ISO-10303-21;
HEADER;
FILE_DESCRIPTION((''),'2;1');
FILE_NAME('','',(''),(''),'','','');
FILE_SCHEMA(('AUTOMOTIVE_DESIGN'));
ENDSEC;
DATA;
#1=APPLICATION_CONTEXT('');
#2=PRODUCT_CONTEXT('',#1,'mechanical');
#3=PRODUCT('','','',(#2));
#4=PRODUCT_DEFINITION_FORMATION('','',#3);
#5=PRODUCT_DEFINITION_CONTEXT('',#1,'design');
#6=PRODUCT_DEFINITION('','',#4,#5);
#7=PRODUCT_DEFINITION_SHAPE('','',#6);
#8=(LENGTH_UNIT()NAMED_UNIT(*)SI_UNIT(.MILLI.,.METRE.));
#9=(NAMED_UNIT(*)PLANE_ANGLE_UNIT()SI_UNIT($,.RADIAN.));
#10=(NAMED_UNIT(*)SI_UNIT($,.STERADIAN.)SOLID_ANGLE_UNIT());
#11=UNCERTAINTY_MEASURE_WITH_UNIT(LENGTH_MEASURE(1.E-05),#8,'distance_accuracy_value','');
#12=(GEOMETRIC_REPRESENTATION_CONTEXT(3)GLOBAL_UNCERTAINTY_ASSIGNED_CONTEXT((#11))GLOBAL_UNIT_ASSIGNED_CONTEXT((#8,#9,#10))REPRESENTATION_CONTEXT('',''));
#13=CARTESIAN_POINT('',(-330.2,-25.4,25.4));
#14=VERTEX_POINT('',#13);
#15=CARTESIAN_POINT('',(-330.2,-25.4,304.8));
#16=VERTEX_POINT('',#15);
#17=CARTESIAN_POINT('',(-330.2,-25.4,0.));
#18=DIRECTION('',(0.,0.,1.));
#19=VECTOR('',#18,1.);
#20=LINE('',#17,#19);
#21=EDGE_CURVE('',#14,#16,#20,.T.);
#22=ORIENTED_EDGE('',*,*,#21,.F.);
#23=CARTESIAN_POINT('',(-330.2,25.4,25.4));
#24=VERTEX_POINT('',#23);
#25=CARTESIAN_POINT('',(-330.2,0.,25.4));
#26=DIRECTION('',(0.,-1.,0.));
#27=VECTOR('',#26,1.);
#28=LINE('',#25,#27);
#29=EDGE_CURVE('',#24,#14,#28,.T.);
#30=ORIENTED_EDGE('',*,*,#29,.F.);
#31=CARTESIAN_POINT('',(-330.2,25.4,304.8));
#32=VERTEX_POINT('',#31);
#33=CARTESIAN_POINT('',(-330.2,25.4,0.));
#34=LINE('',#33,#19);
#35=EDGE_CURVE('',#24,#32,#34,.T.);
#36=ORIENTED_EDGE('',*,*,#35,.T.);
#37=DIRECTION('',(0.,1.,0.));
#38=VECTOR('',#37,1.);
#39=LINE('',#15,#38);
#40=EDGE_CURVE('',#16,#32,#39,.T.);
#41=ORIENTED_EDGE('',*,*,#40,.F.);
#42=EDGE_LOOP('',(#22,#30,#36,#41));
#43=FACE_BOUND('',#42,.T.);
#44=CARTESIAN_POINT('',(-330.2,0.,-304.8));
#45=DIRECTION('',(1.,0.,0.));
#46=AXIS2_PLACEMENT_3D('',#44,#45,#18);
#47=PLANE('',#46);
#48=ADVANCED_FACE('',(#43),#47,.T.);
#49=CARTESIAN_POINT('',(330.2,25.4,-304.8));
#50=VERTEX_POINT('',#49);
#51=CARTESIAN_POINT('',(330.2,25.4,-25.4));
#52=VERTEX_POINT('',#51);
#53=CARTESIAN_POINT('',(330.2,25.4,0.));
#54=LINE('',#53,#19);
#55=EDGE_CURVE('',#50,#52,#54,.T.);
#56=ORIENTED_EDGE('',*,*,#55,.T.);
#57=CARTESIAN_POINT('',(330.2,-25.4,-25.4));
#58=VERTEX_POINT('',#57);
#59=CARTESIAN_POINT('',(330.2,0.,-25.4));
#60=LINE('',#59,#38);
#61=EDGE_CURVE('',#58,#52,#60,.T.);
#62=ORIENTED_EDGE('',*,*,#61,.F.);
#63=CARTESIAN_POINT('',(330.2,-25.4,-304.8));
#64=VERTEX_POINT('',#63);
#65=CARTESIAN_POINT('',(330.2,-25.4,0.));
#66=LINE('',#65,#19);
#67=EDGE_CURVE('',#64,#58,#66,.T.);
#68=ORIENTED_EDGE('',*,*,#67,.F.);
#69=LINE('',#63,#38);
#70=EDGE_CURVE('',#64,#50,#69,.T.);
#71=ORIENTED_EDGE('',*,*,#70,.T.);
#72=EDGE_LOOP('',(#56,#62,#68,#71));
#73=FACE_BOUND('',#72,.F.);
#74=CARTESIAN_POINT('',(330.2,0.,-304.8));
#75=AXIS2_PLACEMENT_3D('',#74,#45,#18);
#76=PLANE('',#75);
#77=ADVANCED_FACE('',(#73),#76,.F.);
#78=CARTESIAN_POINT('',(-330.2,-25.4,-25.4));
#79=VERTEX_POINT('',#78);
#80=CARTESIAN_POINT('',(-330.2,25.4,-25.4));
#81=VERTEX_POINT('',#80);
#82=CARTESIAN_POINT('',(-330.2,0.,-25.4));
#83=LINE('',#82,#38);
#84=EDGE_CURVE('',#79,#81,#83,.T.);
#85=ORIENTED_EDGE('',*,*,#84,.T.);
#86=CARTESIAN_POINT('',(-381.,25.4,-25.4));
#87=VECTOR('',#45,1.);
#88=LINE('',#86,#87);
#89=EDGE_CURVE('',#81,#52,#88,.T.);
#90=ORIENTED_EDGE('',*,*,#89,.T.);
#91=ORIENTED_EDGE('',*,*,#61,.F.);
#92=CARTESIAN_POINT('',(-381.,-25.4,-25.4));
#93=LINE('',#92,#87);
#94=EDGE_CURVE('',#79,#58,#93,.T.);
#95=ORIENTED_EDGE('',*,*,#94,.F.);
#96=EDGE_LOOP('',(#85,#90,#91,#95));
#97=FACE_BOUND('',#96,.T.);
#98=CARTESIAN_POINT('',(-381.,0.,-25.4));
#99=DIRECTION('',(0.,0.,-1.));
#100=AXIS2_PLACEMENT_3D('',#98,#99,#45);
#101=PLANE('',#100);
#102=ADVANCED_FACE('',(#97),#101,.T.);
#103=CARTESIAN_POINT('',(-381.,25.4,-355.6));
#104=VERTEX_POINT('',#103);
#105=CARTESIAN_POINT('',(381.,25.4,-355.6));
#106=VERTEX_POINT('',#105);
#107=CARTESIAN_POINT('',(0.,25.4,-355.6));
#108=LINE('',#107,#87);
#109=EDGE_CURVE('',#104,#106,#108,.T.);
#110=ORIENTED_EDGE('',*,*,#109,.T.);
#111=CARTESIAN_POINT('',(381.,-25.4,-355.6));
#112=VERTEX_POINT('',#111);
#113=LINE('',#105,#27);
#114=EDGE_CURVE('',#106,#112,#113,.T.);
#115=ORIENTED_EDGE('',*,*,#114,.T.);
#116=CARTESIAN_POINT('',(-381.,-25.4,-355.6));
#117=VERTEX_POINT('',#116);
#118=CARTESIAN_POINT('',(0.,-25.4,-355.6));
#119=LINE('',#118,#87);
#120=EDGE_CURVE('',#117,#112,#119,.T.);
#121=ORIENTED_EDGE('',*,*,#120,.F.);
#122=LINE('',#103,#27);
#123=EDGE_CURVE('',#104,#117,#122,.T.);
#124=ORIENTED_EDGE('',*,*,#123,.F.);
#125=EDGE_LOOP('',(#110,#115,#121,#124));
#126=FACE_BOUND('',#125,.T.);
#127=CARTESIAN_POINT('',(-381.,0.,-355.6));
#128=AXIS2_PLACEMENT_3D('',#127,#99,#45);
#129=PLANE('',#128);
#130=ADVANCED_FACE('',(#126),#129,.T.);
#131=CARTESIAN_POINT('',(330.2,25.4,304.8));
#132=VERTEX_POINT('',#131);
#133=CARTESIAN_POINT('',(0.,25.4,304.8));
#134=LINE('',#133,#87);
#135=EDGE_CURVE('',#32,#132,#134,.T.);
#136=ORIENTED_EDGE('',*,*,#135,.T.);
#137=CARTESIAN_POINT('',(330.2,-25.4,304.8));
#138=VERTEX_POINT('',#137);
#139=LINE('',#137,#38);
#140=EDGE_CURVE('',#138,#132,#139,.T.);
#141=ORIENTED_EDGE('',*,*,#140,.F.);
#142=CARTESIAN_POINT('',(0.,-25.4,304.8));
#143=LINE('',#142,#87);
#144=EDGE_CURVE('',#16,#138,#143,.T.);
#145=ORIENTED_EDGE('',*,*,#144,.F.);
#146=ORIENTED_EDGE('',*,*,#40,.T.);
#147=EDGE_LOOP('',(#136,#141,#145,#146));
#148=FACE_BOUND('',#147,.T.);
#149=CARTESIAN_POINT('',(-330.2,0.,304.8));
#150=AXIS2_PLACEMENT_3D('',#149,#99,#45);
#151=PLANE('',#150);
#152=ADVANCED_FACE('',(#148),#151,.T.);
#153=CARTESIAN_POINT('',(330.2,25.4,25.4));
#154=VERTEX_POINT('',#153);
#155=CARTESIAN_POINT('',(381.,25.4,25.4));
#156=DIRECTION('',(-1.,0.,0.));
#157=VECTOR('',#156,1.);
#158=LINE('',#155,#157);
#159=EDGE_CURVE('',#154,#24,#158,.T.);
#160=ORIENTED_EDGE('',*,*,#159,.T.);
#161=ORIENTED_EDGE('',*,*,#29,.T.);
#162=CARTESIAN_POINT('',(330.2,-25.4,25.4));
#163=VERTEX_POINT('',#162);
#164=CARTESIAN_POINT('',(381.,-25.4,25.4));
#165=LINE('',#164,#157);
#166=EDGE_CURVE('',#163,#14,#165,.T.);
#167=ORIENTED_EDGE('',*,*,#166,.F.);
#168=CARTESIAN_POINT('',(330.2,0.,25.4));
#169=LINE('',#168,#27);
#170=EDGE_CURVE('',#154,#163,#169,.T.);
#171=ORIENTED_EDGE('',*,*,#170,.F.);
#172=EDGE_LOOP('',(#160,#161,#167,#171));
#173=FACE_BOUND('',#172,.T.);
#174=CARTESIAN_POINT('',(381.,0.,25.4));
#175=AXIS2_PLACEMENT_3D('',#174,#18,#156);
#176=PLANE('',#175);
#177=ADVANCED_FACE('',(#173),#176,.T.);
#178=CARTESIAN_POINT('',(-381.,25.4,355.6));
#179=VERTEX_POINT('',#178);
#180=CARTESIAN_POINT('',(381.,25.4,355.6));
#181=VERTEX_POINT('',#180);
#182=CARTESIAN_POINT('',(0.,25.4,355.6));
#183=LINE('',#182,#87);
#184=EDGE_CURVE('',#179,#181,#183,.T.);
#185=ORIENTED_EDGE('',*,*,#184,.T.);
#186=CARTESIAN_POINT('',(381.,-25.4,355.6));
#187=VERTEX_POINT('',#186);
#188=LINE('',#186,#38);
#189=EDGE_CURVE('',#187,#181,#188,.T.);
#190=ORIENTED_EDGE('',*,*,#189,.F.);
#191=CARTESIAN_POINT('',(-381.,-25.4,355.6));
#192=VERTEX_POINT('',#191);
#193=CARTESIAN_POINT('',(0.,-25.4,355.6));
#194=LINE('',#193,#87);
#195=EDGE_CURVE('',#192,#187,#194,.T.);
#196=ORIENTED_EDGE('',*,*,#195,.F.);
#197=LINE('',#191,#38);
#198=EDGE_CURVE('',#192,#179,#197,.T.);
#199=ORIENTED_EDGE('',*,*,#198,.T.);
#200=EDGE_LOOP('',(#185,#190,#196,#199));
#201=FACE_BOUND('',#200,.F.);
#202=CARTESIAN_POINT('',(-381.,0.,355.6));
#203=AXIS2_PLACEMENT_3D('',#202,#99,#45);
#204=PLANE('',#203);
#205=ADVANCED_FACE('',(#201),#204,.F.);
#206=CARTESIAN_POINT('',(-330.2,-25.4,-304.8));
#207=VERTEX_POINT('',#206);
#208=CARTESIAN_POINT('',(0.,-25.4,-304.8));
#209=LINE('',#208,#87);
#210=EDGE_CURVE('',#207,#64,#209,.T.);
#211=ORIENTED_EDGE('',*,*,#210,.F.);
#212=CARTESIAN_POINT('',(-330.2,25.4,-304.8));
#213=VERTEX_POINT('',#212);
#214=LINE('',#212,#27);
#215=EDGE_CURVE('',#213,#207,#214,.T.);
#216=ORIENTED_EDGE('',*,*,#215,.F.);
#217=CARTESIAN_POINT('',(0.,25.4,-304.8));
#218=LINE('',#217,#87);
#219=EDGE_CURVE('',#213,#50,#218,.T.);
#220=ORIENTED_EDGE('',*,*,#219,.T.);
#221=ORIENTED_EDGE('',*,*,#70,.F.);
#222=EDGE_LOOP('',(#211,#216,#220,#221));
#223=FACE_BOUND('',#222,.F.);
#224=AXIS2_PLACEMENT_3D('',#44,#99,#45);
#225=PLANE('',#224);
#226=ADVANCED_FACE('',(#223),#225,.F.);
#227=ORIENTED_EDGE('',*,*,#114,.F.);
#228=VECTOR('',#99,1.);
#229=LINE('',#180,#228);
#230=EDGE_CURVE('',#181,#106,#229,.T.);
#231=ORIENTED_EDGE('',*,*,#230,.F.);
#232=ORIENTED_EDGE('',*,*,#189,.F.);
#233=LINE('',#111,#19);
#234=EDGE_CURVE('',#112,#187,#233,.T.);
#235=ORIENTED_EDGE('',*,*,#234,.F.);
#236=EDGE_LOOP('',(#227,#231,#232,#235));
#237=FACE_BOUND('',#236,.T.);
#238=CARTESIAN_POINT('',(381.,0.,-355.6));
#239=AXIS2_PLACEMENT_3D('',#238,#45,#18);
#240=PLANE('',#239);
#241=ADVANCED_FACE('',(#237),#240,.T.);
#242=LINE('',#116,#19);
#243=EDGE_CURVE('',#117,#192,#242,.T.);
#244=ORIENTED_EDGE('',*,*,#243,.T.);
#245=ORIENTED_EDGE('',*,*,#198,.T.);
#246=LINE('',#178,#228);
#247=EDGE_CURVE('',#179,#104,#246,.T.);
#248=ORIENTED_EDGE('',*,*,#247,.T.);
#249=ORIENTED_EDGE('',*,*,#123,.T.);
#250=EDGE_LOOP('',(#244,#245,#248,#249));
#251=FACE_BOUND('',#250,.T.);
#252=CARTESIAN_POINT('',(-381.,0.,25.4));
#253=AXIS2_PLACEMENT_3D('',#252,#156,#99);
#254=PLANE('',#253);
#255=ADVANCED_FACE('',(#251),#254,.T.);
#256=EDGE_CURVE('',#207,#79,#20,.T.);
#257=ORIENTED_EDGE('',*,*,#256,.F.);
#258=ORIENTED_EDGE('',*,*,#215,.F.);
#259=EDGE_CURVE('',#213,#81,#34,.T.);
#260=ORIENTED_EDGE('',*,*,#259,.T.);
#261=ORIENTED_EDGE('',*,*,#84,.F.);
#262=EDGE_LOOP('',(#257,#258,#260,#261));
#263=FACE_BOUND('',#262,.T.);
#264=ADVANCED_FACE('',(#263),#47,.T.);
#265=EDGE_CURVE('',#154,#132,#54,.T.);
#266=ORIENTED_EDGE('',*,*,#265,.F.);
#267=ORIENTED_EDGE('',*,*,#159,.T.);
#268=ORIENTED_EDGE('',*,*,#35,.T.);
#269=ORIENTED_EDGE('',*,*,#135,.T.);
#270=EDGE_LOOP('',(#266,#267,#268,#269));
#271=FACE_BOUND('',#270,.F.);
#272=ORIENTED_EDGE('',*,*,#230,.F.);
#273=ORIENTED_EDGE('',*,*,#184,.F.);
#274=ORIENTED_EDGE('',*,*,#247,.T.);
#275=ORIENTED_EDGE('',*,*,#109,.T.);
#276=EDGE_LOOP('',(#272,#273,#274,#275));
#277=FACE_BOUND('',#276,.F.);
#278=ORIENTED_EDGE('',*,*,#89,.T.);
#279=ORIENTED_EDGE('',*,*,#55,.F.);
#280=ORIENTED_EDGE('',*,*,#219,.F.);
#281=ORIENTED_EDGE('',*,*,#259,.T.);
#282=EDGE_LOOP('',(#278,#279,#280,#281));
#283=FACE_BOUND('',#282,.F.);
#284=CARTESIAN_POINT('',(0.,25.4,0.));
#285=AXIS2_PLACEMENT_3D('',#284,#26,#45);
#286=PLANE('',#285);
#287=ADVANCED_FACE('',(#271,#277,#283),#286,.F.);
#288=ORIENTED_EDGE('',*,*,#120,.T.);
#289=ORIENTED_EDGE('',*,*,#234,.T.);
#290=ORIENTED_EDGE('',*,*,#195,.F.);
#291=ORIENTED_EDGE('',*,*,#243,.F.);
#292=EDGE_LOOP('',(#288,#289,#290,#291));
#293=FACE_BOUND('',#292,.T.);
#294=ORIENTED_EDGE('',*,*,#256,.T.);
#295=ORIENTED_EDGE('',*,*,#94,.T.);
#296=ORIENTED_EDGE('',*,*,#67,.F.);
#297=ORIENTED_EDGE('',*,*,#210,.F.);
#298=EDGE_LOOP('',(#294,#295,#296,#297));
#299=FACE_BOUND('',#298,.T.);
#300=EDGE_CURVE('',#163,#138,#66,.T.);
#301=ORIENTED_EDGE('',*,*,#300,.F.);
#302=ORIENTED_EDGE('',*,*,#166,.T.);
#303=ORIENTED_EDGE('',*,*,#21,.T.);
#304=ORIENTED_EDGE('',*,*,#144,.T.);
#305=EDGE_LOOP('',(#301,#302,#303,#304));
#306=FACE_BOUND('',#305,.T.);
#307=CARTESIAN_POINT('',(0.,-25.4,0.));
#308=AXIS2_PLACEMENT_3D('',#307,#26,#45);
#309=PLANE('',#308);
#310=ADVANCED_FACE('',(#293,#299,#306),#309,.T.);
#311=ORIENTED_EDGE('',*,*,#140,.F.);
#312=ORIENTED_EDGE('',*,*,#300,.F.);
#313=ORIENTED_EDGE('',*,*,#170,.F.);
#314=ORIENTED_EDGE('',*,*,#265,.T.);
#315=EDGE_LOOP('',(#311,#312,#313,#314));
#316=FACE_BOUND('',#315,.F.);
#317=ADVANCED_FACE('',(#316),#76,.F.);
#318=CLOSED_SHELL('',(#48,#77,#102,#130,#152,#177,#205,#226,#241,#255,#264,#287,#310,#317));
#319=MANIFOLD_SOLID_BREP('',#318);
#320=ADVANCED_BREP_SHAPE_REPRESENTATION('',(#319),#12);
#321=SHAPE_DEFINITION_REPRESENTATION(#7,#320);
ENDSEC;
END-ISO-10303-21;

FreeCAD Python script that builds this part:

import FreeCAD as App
import Part
import Sketcher
Q = App.Units.Quantity


def add_polygon(sketch, points):
    """Adds a closed chain of lines whose ends are joined by coincident constraints."""
    first, n = sketch.GeometryCount, len(points)
    for a, b in zip(points, points[1:] + points[:1]):
        sketch.addGeometry(Part.LineSegment(App.Vector(*a, 0), App.Vector(*b, 0)), False)
    for i in range(n):
        sketch.addConstraint(Sketcher.Constraint("Coincident", first + i, 2, first + (i + 1) % n, 1))

doc = App.newDocument("Part")
body = doc.addObject("PartDesign::Body", "Body")

sketch1 = body.newObject("Sketcher::SketchObject", "Sketch")
sketch1.AttachmentSupport = (doc.getObject("XZ_Plane"), [""])
sketch1.MapMode = "FlatFace"
add_polygon(sketch1, [(-381, 356), (-381, -356), (381, -356), (381, 356)])
add_polygon(sketch1, [(330, -305), (-330, -305), (-330, 305), (330, 305)])
sketch1.addConstraint([
    Sketcher.Constraint("Vertical", 0),
    Sketcher.Constraint("Horizontal", 1),
    Sketcher.Constraint("Vertical", 2),
    Sketcher.Constraint("Horizontal", 3),
    Sketcher.Constraint("Horizontal", 4),
    Sketcher.Constraint("Vertical", 5),
    Sketcher.Constraint("Horizontal", 6),
    Sketcher.Constraint("Vertical", 7),
    Sketcher.Constraint("Symmetric", 0, 2, 2, 2, -1, 1),
    Sketcher.Constraint("Symmetric", 4, 2, 6, 2, -1, 1),
    Sketcher.Constraint("DistanceX", 1, 1, 1, 2, Q("30 in")),
    Sketcher.Constraint("DistanceX", 4, 2, 4, 1, Q("26 in")),
    Sketcher.Constraint("DistanceY", 0, 2, 0, 1, Q("28 in")),
    Sketcher.Constraint("DistanceY", 5, 1, 5, 2, Q("24 in")),
])
pad1 = body.newObject("PartDesign::Pad", "Pad")
pad1.Profile = sketch1
pad1.Length = Q("2 in")
pad1.Midplane = True

sketch2 = body.newObject("Sketcher::SketchObject", "Sketch001")
sketch2.AttachmentSupport = (doc.getObject("XZ_Plane"), [""])
sketch2.MapMode = "FlatFace"
add_polygon(sketch2, [(-381, 25), (-381, -25), (381, -25), (381, 25)])
sketch2.addConstraint([
    Sketcher.Constraint("Vertical", 0),
    Sketcher.Constraint("Horizontal", 1),
    Sketcher.Constraint("Vertical", 2),
    Sketcher.Constraint("Horizontal", 3),
    Sketcher.Constraint("Symmetric", 0, 2, 2, 2, -1, 1),
    Sketcher.Constraint("DistanceX", 1, 1, 1, 2, Q("30 in")),
    Sketcher.Constraint("DistanceY", 0, 2, 0, 1, Q("2 in")),
])
pad2 = body.newObject("PartDesign::Pad", "Pad001")
pad2.Profile = sketch2
pad2.Length = Q("2 in")
pad2.Midplane = True

doc.recompute()
